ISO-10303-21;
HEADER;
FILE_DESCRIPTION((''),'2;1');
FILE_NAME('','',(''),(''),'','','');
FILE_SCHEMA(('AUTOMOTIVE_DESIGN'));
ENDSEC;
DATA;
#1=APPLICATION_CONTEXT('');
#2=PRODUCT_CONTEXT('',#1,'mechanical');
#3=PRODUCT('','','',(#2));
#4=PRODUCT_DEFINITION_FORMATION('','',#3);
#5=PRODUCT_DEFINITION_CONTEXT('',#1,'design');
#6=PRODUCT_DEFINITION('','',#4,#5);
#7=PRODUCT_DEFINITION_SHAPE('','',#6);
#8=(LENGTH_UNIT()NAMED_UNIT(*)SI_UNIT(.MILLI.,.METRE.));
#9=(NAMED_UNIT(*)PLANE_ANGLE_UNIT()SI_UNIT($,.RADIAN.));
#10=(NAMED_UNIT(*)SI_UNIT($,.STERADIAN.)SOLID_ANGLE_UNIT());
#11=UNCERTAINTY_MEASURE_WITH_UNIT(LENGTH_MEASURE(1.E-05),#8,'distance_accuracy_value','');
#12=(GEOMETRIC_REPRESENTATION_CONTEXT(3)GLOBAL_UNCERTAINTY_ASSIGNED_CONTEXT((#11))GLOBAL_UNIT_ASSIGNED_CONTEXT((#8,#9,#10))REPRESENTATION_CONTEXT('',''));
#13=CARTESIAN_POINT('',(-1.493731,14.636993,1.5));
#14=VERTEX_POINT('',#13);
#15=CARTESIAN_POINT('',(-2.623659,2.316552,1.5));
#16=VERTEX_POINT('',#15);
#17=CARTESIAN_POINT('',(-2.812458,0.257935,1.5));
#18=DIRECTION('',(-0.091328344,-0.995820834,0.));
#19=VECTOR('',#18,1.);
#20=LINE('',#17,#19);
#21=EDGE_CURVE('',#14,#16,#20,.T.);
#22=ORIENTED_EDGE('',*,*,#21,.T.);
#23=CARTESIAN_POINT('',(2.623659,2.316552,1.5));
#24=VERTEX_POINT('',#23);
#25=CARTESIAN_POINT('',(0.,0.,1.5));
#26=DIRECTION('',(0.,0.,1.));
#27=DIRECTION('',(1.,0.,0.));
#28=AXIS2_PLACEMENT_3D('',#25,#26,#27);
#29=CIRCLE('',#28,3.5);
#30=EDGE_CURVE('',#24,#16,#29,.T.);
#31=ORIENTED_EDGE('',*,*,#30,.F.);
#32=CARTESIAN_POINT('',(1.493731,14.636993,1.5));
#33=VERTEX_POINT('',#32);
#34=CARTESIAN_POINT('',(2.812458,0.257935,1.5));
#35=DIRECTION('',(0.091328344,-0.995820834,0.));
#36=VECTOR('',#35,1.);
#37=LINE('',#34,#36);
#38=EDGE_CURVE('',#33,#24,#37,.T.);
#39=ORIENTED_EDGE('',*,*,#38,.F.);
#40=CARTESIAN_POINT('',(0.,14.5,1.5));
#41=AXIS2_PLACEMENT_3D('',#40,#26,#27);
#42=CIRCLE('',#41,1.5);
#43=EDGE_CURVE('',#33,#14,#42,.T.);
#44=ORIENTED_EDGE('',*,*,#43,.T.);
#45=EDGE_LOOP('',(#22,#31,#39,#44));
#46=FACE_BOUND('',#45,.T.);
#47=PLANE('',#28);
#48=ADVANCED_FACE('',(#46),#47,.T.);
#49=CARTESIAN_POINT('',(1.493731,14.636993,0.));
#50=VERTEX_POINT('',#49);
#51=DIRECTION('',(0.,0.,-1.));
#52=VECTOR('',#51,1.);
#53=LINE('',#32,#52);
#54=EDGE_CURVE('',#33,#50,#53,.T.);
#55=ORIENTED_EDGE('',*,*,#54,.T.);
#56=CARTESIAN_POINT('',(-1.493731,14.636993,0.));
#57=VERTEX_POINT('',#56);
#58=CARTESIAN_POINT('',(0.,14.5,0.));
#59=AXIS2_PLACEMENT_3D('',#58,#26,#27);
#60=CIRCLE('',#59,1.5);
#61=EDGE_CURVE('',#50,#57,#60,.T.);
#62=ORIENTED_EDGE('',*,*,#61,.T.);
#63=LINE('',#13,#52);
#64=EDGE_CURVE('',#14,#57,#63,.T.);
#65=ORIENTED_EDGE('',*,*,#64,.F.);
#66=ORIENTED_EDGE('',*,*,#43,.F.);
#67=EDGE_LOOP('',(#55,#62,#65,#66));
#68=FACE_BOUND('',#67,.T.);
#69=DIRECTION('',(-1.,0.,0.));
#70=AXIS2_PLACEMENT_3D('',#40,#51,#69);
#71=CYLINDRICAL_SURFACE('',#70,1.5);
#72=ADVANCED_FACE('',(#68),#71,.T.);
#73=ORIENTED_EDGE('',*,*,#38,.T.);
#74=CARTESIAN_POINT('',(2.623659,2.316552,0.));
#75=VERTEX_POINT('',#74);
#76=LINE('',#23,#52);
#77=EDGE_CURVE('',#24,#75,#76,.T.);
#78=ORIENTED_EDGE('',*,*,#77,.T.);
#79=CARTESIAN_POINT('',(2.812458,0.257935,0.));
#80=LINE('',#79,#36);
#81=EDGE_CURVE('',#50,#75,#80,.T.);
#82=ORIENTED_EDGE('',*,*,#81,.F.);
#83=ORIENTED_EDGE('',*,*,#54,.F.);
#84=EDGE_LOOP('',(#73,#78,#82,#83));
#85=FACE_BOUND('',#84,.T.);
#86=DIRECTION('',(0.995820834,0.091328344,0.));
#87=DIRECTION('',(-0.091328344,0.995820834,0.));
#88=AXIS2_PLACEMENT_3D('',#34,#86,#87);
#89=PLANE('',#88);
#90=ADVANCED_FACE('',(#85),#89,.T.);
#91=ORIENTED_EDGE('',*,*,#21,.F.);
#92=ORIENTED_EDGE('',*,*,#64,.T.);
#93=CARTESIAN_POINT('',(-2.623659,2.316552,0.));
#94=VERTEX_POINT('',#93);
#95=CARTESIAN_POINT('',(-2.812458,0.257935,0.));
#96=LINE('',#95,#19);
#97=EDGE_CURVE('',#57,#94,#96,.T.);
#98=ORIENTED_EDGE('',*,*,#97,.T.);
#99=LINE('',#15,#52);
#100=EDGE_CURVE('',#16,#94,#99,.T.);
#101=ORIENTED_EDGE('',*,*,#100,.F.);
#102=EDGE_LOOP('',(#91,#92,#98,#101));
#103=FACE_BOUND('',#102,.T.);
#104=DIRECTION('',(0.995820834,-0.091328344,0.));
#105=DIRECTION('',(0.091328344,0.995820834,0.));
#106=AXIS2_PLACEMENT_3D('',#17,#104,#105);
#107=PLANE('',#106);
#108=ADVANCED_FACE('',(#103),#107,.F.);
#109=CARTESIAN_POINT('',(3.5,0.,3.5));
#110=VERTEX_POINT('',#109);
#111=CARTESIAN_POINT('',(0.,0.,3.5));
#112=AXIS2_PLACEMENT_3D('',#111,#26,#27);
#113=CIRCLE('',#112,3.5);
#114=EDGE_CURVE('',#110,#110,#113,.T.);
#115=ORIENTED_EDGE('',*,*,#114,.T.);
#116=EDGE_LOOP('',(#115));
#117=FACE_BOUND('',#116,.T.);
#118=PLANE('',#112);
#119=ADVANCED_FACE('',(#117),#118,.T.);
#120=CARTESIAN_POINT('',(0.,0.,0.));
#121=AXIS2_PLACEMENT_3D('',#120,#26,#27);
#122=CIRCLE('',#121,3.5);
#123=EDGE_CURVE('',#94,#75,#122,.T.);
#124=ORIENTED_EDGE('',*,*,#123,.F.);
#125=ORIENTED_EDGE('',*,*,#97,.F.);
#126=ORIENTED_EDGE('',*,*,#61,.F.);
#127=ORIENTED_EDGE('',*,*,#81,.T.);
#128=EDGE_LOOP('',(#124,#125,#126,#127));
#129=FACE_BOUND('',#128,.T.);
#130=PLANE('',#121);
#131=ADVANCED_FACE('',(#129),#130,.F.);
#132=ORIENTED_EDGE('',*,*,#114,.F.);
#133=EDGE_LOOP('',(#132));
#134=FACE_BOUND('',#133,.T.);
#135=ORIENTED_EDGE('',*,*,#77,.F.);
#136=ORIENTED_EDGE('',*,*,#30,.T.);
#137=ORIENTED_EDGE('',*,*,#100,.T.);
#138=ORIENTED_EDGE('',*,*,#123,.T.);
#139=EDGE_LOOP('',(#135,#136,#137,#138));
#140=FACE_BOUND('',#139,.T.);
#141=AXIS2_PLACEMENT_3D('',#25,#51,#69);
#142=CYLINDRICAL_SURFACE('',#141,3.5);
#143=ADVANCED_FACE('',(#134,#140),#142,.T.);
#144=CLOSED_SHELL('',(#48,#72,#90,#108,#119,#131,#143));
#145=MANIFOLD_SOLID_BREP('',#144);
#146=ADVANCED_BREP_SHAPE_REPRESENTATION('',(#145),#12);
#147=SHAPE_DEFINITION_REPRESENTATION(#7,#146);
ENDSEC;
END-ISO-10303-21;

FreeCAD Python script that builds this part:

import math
import FreeCAD as App
import Part
import Sketcher
from FreeCAD import Vector

doc = App.newDocument("Part")
body = doc.addObject("PartDesign::Body", "Body")

sketch1 = body.newObject("Sketcher::SketchObject", "Sketch")
sketch1.AttachmentSupport = (doc.getObject("XY_Plane"), [""])
sketch1.MapMode = "FlatFace"
sketch1.addGeometry([
    Part.LineSegment(Vector(2.623659, 2.316552, 0), Vector(1.493731, 14.636993, 0)),
    Part.ArcOfCircle(Part.Circle(Vector(0, 14.5, 0), Vector(0, 0, 1), 1.5), math.radians(5.24003), math.radians(174.75997)),
    Part.LineSegment(Vector(-1.493731, 14.636993, 0), Vector(-2.623659, 2.316552, 0)),
    Part.ArcOfCircle(Part.Circle(Vector(0, 0, 0), Vector(0, 0, 1), 3.5), math.radians(138.557195), math.radians(401.442805)),
], False)
sketch1.addConstraint([
    Sketcher.Constraint("Coincident", 0, 2, 1, 1),
    Sketcher.Constraint("Coincident", 1, 2, 2, 1),
    Sketcher.Constraint("Coincident", 2, 2, 3, 1),
    Sketcher.Constraint("Coincident", 3, 2, 0, 1),
    Sketcher.Constraint("Coincident", 3, 3, -1, 1),
    Sketcher.Constraint("PointOnObject", 1, 3, -2),
    Sketcher.Constraint("Radius", 1, 1.5),
    Sketcher.Constraint("Radius", 3, 3.5),
    Sketcher.Constraint("DistanceY", -1, 1, 1, 3, 14.5),
    Sketcher.Constraint("DistanceX", -1, 1, 0, 2, 1.493731),
    Sketcher.Constraint("DistanceX", 1, 2, -1, 1, 1.493731),
    Sketcher.Constraint("DistanceX", 2, 2, -1, 1, 2.623659),
    Sketcher.Constraint("DistanceX", -1, 1, 3, 2, 2.623659),
])
pad1 = body.newObject("PartDesign::Pad", "Pad")
pad1.Profile = sketch1
pad1.Length = 1.5

sketch2 = body.newObject("Sketcher::SketchObject", "Sketch001")
sketch2.AttachmentSupport = (doc.getObject("XY_Plane"), [""])
sketch2.MapMode = "FlatFace"
sketch2.AttachmentOffset = App.Placement(Vector(0, 0, 1.5), App.Rotation())
sketch2.addGeometry(Part.Circle(Vector(0, 0, 0), Vector(0, 0, 1), 3.5), False)
sketch2.addConstraint([
    Sketcher.Constraint("Coincident", 0, 3, -1, 1),
    Sketcher.Constraint("Diameter", 0, 7.0),
])
pad2 = body.newObject("PartDesign::Pad", "Pad001")
pad2.Profile = sketch2
pad2.Length = 2

doc.recompute()
